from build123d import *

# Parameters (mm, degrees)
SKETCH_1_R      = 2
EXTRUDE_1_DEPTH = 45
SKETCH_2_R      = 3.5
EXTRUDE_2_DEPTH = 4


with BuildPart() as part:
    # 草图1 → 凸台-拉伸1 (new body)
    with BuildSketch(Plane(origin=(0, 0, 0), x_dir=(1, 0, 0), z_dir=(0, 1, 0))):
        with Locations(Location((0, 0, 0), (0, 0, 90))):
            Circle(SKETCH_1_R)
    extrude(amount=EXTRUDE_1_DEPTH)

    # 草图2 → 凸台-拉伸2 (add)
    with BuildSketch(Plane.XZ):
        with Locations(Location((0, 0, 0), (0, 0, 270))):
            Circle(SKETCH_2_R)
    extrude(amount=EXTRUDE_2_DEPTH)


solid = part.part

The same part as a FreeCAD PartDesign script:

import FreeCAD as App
import Part
import Sketcher

V = App.Vector
Q = App.Units.Quantity

doc = App.newDocument("Part")
params = doc.addObject("Spreadsheet::Sheet", "Params")
for row, (alias, value) in enumerate([
    ("sketch1_diameter", "4 mm"),
    ("pad1_length", "45 mm"),
    ("sketch2_diameter", "7 mm"),
    ("pad2_length", "4 mm"),
], start=1):
    params.set(f"A{row}", alias)
    params.set(f"B{row}", "=" + value)
    params.setAlias(f"B{row}", alias)

body = doc.addObject("PartDesign::Body", "Body")

# Sketch on XZ plane
sketch1 = body.newObject("Sketcher::SketchObject", "Sketch")
sketch1.AttachmentSupport = (doc.getObject("XZ_Plane"), [""])
sketch1.MapMode = "FlatFace"
sketch1.addGeometry(Part.Circle(V(0, 0, 0), V(0, 0, 1), 2), False)
sketch1.addConstraint([
    Sketcher.Constraint("Coincident", 0, 3, -1, 1),
    Sketcher.Constraint("Diameter", 0, Q("4 mm")),
])
sketch1.setExpression("Constraints[1]", "Params.sketch1_diameter")
pad1 = body.newObject("PartDesign::Pad", "Pad")
pad1.Profile = sketch1
pad1.setExpression("Length", "Params.pad1_length")
pad1.Reversed = True

# Sketch on XZ plane
sketch2 = body.newObject("Sketcher::SketchObject", "Sketch001")
sketch2.AttachmentSupport = (doc.getObject("XZ_Plane"), [""])
sketch2.MapMode = "FlatFace"
sketch2.addGeometry(Part.Circle(V(0, 0, 0), V(0, 0, 1), 3.5), False)
sketch2.addConstraint([
    Sketcher.Constraint("Coincident", 0, 3, -1, 1),
    Sketcher.Constraint("Diameter", 0, Q("7 mm")),
])
sketch2.setExpression("Constraints[1]", "Params.sketch2_diameter")
pad2 = body.newObject("PartDesign::Pad", "Pad001")
pad2.Profile = sketch2
pad2.setExpression("Length", "Params.pad2_length")

doc.recompute()
